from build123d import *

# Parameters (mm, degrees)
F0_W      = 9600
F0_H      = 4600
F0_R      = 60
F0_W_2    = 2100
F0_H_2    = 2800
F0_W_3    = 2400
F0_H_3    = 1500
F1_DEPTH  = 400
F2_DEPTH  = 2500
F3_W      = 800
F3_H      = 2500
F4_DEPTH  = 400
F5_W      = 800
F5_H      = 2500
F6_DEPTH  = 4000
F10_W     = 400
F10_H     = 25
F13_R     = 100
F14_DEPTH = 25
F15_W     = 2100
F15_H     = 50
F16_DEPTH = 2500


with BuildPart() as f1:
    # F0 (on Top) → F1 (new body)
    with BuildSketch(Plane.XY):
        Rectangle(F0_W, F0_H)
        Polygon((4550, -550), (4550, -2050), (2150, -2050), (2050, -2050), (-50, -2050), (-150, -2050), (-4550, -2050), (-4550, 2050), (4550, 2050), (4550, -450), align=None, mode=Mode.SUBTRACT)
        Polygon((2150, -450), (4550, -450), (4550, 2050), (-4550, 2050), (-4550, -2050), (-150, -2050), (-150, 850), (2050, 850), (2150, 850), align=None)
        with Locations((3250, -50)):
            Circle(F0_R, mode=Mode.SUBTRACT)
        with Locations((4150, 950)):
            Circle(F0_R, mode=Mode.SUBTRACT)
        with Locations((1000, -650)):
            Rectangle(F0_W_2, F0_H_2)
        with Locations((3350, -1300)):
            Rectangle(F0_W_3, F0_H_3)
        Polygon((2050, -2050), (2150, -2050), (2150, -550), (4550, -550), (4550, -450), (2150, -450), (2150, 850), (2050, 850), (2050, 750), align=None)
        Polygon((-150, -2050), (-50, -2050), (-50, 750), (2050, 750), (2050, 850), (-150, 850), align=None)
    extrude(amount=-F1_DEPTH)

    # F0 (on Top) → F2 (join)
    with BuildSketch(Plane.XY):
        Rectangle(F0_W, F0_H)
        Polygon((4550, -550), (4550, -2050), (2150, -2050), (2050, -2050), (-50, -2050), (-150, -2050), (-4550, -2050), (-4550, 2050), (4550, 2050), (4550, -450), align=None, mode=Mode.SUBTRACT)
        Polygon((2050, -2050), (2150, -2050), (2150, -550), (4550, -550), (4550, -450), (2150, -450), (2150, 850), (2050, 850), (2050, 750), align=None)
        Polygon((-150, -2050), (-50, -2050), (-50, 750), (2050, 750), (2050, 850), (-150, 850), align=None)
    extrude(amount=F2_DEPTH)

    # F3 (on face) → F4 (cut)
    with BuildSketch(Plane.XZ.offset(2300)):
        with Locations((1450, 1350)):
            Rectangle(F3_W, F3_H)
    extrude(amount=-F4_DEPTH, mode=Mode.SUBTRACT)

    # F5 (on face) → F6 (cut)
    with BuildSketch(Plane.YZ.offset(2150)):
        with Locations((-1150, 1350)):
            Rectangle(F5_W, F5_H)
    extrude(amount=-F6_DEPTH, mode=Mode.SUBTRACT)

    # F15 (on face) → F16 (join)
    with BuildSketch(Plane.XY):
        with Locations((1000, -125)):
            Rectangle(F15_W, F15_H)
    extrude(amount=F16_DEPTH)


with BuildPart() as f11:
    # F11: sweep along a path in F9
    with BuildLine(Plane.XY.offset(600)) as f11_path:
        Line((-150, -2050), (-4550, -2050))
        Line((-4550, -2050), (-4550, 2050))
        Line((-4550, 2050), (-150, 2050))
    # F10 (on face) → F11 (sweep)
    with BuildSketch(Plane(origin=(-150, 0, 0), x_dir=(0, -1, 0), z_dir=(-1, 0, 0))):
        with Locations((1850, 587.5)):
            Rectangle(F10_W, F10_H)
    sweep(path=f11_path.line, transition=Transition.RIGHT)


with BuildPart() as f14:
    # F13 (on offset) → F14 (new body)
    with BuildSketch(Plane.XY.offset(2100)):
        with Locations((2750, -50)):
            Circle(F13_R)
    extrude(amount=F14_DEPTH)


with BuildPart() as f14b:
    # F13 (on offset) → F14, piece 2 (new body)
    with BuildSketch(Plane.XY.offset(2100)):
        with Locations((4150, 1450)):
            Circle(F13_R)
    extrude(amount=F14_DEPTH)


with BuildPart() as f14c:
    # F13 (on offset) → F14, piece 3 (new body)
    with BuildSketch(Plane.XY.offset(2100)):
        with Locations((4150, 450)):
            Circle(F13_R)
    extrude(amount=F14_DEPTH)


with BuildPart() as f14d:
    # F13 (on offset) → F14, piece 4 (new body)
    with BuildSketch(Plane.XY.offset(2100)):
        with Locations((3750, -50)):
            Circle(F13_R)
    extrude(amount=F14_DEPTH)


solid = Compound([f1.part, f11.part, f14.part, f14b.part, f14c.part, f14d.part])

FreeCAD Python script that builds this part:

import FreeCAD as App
import Part
import Sketcher
from FreeCAD import Vector


def add_polygon(sketch, points):
    """Adds a closed chain of lines whose ends are joined by coincident constraints."""
    first, n = sketch.GeometryCount, len(points)
    for a, b in zip(points, points[1:] + points[:1]):
        sketch.addGeometry(Part.LineSegment(App.Vector(*a, 0), App.Vector(*b, 0)), False)
    for i in range(n):
        sketch.addConstraint(Sketcher.Constraint("Coincident", first + i, 2, first + (i + 1) % n, 1))

doc = App.newDocument("Part")
params = doc.addObject("Spreadsheet::Sheet", "Params")
for row, (alias, value) in enumerate([
    ("sketch1_diameter", "120 mm"),
    ("sketch1_width", "9600 mm"),
    ("sketch1_height", "4600 mm"),
    ("pad1_length", "400 mm"),
    ("sketch2_width", "9600 mm"),
    ("sketch2_width2", "2400 mm"),
    ("sketch2_width3", "2300 mm"),
    ("sketch2_width4", "4400 mm"),
    ("sketch2_width5", "2100 mm"),
    ("pad2_length", "2500 mm"),
    ("sketch3_width", "800 mm"),
    ("sketch3_height", "2500 mm"),
    ("pocket1_length", "400 mm"),
    ("sketch4_width", "800 mm"),
    ("sketch4_height", "2500 mm"),
    ("pocket2_length", "4000 mm"),
    ("sketch5_width", "2100 mm"),
    ("sketch5_height", "50 mm"),
    ("pad3_length", "2500 mm"),
    ("sketch6_width", "400 mm"),
    ("sketch6_height", "25 mm"),
    ("sketch7_width", "4400 mm"),
    ("sketch7_height", "4100 mm"),
    ("sketch8_diameter", "200 mm"),
    ("pad4_length", "25 mm"),
    ("sketch9_diameter", "200 mm"),
    ("pad5_length", "25 mm"),
    ("sketch10_diameter", "200 mm"),
    ("pad6_length", "25 mm"),
    ("sketch11_diameter", "200 mm"),
    ("pad7_length", "25 mm"),
], start=1):
    params.set(f"A{row}", alias)
    params.set(f"B{row}", "=" + value)
    params.setAlias(f"B{row}", alias)

body = doc.addObject("PartDesign::Body", "Body")

sketch1 = doc.addObject("Sketcher::SketchObject", "Sketch")
body.addObject(sketch1)
sketch1.AttachmentSupport = (doc.XY_Plane, [""])
sketch1.MapMode = "FlatFace"
add_polygon(sketch1, [(-4800, 2300), (-4800, -2300), (4800, -2300), (4800, 2300)])
sketch1.addGeometry(Part.Circle(Vector(3250, -50, 0), Vector(0, 0, 1), 60), False)
sketch1.addGeometry(Part.Circle(Vector(4150, 950, 0), Vector(0, 0, 1), 60), False)
sketch1.addConstraint(Sketcher.Constraint("Vertical", 0))
sketch1.addConstraint(Sketcher.Constraint("Horizontal", 1))
sketch1.addConstraint(Sketcher.Constraint("Vertical", 2))
sketch1.addConstraint(Sketcher.Constraint("Horizontal", 3))
sketch1.addConstraint(Sketcher.Constraint("Equal", 4, 5))
sketch1.addConstraint(Sketcher.Constraint("Symmetric", 0, 2, 2, 2, -1, 1))
sketch1.addConstraint(Sketcher.Constraint("Diameter", 4, 120.0))
sketch1.addConstraint(Sketcher.Constraint("DistanceX", 1, 1, 1, 2, 9600.0))
sketch1.addConstraint(Sketcher.Constraint("DistanceY", 0, 2, 0, 1, 4600.0))
sketch1.addConstraint(Sketcher.Constraint("DistanceX", -1, 1, 4, 3, 3250.0))
sketch1.addConstraint(Sketcher.Constraint("DistanceY", 4, 3, -1, 1, 50.0))
sketch1.addConstraint(Sketcher.Constraint("DistanceX", -1, 1, 5, 3, 4150.0))
sketch1.addConstraint(Sketcher.Constraint("DistanceY", -1, 1, 5, 3, 950.0))
sketch1.setExpression("Constraints[10]", "Params.sketch1_diameter")
sketch1.setExpression("Constraints[11]", "Params.sketch1_width")
sketch1.setExpression("Constraints[12]", "Params.sketch1_height")
pad1 = doc.addObject("PartDesign::Pad", "Pad")
body.addObject(pad1)
pad1.Profile = sketch1
pad1.setExpression("Length", "Params.pad1_length")
pad1.Reversed = True

sketch2 = doc.addObject("Sketcher::SketchObject", "Sketch001")
body.addObject(sketch2)
sketch2.AttachmentSupport = (doc.XY_Plane, [""])
sketch2.MapMode = "FlatFace"
add_polygon(sketch2, [(-4800, 2300), (-4800, -2300), (4800, -2300), (4800, 2300)])
add_polygon(sketch2, [(4550, 2050), (4550, -450), (2150, -450), (2150, 850), (-150, 850), (-150, -2050), (-4550, -2050), (-4550, 2050)])
add_polygon(sketch2, [(2050, 750), (2050, -2050), (-50, -2050), (-50, 750)])
add_polygon(sketch2, [(4550, -550), (4550, -2050), (2150, -2050), (2150, -550)])
sketch2.addConstraint(Sketcher.Constraint("Vertical", 0))
sketch2.addConstraint(Sketcher.Constraint("Horizontal", 1))
sketch2.addConstraint(Sketcher.Constraint("Vertical", 2))
sketch2.addConstraint(Sketcher.Constraint("Horizontal", 3))
sketch2.addConstraint(Sketcher.Constraint("Vertical", 4))
sketch2.addConstraint(Sketcher.Constraint("Horizontal", 5))
sketch2.addConstraint(Sketcher.Constraint("Vertical", 6))
sketch2.addConstraint(Sketcher.Constraint("Horizontal", 7))
sketch2.addConstraint(Sketcher.Constraint("Vertical", 8))
sketch2.addConstraint(Sketcher.Constraint("Horizontal", 9))
sketch2.addConstraint(Sketcher.Constraint("Vertical", 10))
sketch2.addConstraint(Sketcher.Constraint("Horizontal", 11))
sketch2.addConstraint(Sketcher.Constraint("Vertical", 12))
sketch2.addConstraint(Sketcher.Constraint("Horizontal", 13))
sketch2.addConstraint(Sketcher.Constraint("Vertical", 14))
sketch2.addConstraint(Sketcher.Constraint("Horizontal", 15))
sketch2.addConstraint(Sketcher.Constraint("Vertical", 16))
sketch2.addConstraint(Sketcher.Constraint("Horizontal", 17))
sketch2.addConstraint(Sketcher.Constraint("Vertical", 18))
sketch2.addConstraint(Sketcher.Constraint("Horizontal", 19))
sketch2.addConstraint(Sketcher.Constraint("Symmetric", 0, 2, 2, 2, -1, 1))
sketch2.addConstraint(Sketcher.Constraint("Symmetric", 9, 2, 11, 2, -1, 1))
sketch2.addConstraint(Sketcher.Constraint("Symmetric", 10, 2, 16, 2, -1, 1))
sketch2.addConstraint(Sketcher.Constraint("Horizontal", 9, 2, 12, 2))
sketch2.addConstraint(Sketcher.Constraint("Vertical", 6, 2, 17, 2))
sketch2.addConstraint(Sketcher.Constraint("DistanceX", 1, 1, 1, 2, 9600.0))
sketch2.addConstraint(Sketcher.Constraint("DistanceX", 5, 2, 5, 1, 2400.0))
sketch2.addConstraint(Sketcher.Constraint("DistanceX", 7, 2, 7, 1, 2300.0))
sketch2.addConstraint(Sketcher.Constraint("DistanceX", 9, 2, 9, 1, 4400.0))
sketch2.addConstraint(Sketcher.Constraint("DistanceX", 13, 2, 13, 1, 2100.0))
sketch2.addConstraint(Sketcher.Constraint("DistanceY", 0, 2, 0, 1, 4600.0))
sketch2.addConstraint(Sketcher.Constraint("DistanceY", 4, 2, 4, 1, 2500.0))
sketch2.addConstraint(Sketcher.Constraint("DistanceY", 6, 1, 6, 2, 1300.0))
sketch2.addConstraint(Sketcher.Constraint("DistanceY", 8, 2, 8, 1, 2900.0))
sketch2.addConstraint(Sketcher.Constraint("DistanceY", 12, 2, 12, 1, 2800.0))
sketch2.addConstraint(Sketcher.Constraint("DistanceY", 16, 2, 16, 1, 1500.0))
sketch2.addConstraint(Sketcher.Constraint("DistanceX", -1, 1, 12, 2, 2050.0))
sketch2.setExpression("Constraints[45]", "Params.sketch2_width")
sketch2.setExpression("Constraints[46]", "Params.sketch2_width2")
sketch2.setExpression("Constraints[47]", "Params.sketch2_width3")
sketch2.setExpression("Constraints[48]", "Params.sketch2_width4")
sketch2.setExpression("Constraints[49]", "Params.sketch2_width5")
pad2 = doc.addObject("PartDesign::Pad", "Pad001")
body.addObject(pad2)
pad2.Profile = sketch2
pad2.setExpression("Length", "Params.pad2_length")

sketch3 = doc.addObject("Sketcher::SketchObject", "Sketch002")
body.addObject(sketch3)
sketch3.AttachmentSupport = (doc.XZ_Plane, [""])
sketch3.MapMode = "FlatFace"
sketch3.AttachmentOffset = App.Placement(Vector(0, 0, 2300), App.Rotation())
add_polygon(sketch3, [(1050, 2600), (1050, 100), (1850, 100), (1850, 2600)])
sketch3.addConstraint(Sketcher.Constraint("Vertical", 0))
sketch3.addConstraint(Sketcher.Constraint("Horizontal", 1))
sketch3.addConstraint(Sketcher.Constraint("Vertical", 2))
sketch3.addConstraint(Sketcher.Constraint("Horizontal", 3))
sketch3.addConstraint(Sketcher.Constraint("DistanceX", 1, 1, 1, 2, 800.0))
sketch3.addConstraint(Sketcher.Constraint("DistanceY", 0, 2, 0, 1, 2500.0))
sketch3.addConstraint(Sketcher.Constraint("DistanceX", -1, 1, 0, 2, 1050.0))
sketch3.addConstraint(Sketcher.Constraint("DistanceY", -1, 1, 0, 2, 100.0))
sketch3.setExpression("Constraints[8]", "Params.sketch3_width")
sketch3.setExpression("Constraints[9]", "Params.sketch3_height")
pocket1 = doc.addObject("PartDesign::Pocket", "Pocket")
body.addObject(pocket1)
pocket1.Profile = sketch3
pocket1.setExpression("Length", "Params.pocket1_length")

sketch4 = doc.addObject("Sketcher::SketchObject", "Sketch003")
body.addObject(sketch4)
sketch4.AttachmentSupport = (doc.YZ_Plane, [""])
sketch4.MapMode = "FlatFace"
sketch4.AttachmentOffset = App.Placement(Vector(0, 0, 2150), App.Rotation())
add_polygon(sketch4, [(-1550, 2600), (-1550, 100), (-750, 100), (-750, 2600)])
sketch4.addConstraint(Sketcher.Constraint("Vertical", 0))
sketch4.addConstraint(Sketcher.Constraint("Horizontal", 1))
sketch4.addConstraint(Sketcher.Constraint("Vertical", 2))
sketch4.addConstraint(Sketcher.Constraint("Horizontal", 3))
sketch4.addConstraint(Sketcher.Constraint("DistanceX", 1, 1, 1, 2, 800.0))
sketch4.addConstraint(Sketcher.Constraint("DistanceY", 0, 2, 0, 1, 2500.0))
sketch4.addConstraint(Sketcher.Constraint("DistanceX", 0, 2, -1, 1, 1550.0))
sketch4.addConstraint(Sketcher.Constraint("DistanceY", -1, 1, 0, 2, 100.0))
sketch4.setExpression("Constraints[8]", "Params.sketch4_width")
sketch4.setExpression("Constraints[9]", "Params.sketch4_height")
pocket2 = doc.addObject("PartDesign::Pocket", "Pocket001")
body.addObject(pocket2)
pocket2.Profile = sketch4
pocket2.setExpression("Length", "Params.pocket2_length")

sketch5 = doc.addObject("Sketcher::SketchObject", "Sketch004")
body.addObject(sketch5)
sketch5.AttachmentSupport = (doc.XY_Plane, [""])
sketch5.MapMode = "FlatFace"
add_polygon(sketch5, [(-50, -100), (-50, -150), (2050, -150), (2050, -100)])
sketch5.addConstraint(Sketcher.Constraint("Vertical", 0))
sketch5.addConstraint(Sketcher.Constraint("Horizontal", 1))
sketch5.addConstraint(Sketcher.Constraint("Vertical", 2))
sketch5.addConstraint(Sketcher.Constraint("Horizontal", 3))
sketch5.addConstraint(Sketcher.Constraint("DistanceX", 1, 1, 1, 2, 2100.0))
sketch5.addConstraint(Sketcher.Constraint("DistanceY", 0, 2, 0, 1, 50.0))
sketch5.addConstraint(Sketcher.Constraint("DistanceX", 0, 2, -1, 1, 50.0))
sketch5.addConstraint(Sketcher.Constraint("DistanceY", 0, 2, -1, 1, 150.0))
sketch5.setExpression("Constraints[8]", "Params.sketch5_width")
sketch5.setExpression("Constraints[9]", "Params.sketch5_height")
pad3 = doc.addObject("PartDesign::Pad", "Pad002")
body.addObject(pad3)
pad3.Profile = sketch5
pad3.setExpression("Length", "Params.pad3_length")
body2 = doc.addObject("PartDesign::Body", "Body001")

sketch6 = doc.addObject("Sketcher::SketchObject", "Sketch005")
body2.addObject(sketch6)
sketch6.AttachmentSupport = (doc.getObject("YZ_Plane001"), [""])
sketch6.MapMode = "FlatFace"
sketch6.AttachmentOffset = App.Placement(Vector(0, 0, -150), App.Rotation())
add_polygon(sketch6, [(-1650, 600), (-1650, 575), (-2050, 575), (-2050, 600)])
sketch6.addConstraint(Sketcher.Constraint("Vertical", 0))
sketch6.addConstraint(Sketcher.Constraint("Horizontal", 1))
sketch6.addConstraint(Sketcher.Constraint("Vertical", 2))
sketch6.addConstraint(Sketcher.Constraint("Horizontal", 3))
sketch6.addConstraint(Sketcher.Constraint("DistanceX", 1, 2, 1, 1, 400.0))
sketch6.addConstraint(Sketcher.Constraint("DistanceY", 0, 2, 0, 1, 25.0))
sketch6.addConstraint(Sketcher.Constraint("DistanceX", 0, 2, -1, 1, 1650.0))
sketch6.addConstraint(Sketcher.Constraint("DistanceY", -1, 1, 0, 2, 575.0))
sketch6.setExpression("Constraints[8]", "Params.sketch6_width")
sketch6.setExpression("Constraints[9]", "Params.sketch6_height")

sketch7 = doc.addObject("Sketcher::SketchObject", "Sketch006")
body2.addObject(sketch7)
sketch7.AttachmentSupport = (doc.getObject("XY_Plane001"), [""])
sketch7.MapMode = "FlatFace"
sketch7.AttachmentOffset = App.Placement(Vector(0, 0, 600), App.Rotation())
sketch7.addGeometry(Part.LineSegment(Vector(-150, -2050, 0), Vector(-4550, -2050, 0)), False)
sketch7.addGeometry(Part.LineSegment(Vector(-4550, -2050, 0), Vector(-4550, 2050, 0)), False)
sketch7.addGeometry(Part.LineSegment(Vector(-4550, 2050, 0), Vector(-150, 2050, 0)), False)
sketch7.addConstraint(Sketcher.Constraint("Coincident", 0, 2, 1, 1))
sketch7.addConstraint(Sketcher.Constraint("Coincident", 1, 2, 2, 1))
sketch7.addConstraint(Sketcher.Constraint("Horizontal", 0))
sketch7.addConstraint(Sketcher.Constraint("Vertical", 1))
sketch7.addConstraint(Sketcher.Constraint("Horizontal", 2))
sketch7.addConstraint(Sketcher.Constraint("Symmetric", 0, 1, 2, 2, -1))
sketch7.addConstraint(Sketcher.Constraint("DistanceX", 0, 2, 0, 1, 4400.0))
sketch7.addConstraint(Sketcher.Constraint("DistanceY", 1, 1, 1, 2, 4100.0))
sketch7.addConstraint(Sketcher.Constraint("DistanceX", 0, 1, -1, 1, 150.0))
sketch7.setExpression("Constraints[6]", "Params.sketch7_width")
sketch7.setExpression("Constraints[7]", "Params.sketch7_height")
doc.recompute()

additivepipe = doc.addObject("PartDesign::AdditivePipe", "AdditivePipe")
body2.addObject(additivepipe)
additivepipe.Profile = sketch6
additivepipe.Spine = (sketch7, ["Edge1", "Edge2", "Edge3"])
additivepipe.Transition = "Right corner"
body3 = doc.addObject("PartDesign::Body", "Body002")

sketch8 = doc.addObject("Sketcher::SketchObject", "Sketch007")
body3.addObject(sketch8)
sketch8.AttachmentSupport = (doc.getObject("XY_Plane002"), [""])
sketch8.MapMode = "FlatFace"
sketch8.AttachmentOffset = App.Placement(Vector(0, 0, 2100), App.Rotation())
sketch8.addGeometry(Part.Circle(Vector(2750, -50, 0), Vector(0, 0, 1), 100), False)
sketch8.addConstraint(Sketcher.Constraint("Diameter", 0, 200.0))
sketch8.addConstraint(Sketcher.Constraint("DistanceX", -1, 1, 0, 3, 2750.0))
sketch8.addConstraint(Sketcher.Constraint("DistanceY", 0, 3, -1, 1, 50.0))
sketch8.setExpression("Constraints[0]", "Params.sketch8_diameter")
pad4 = doc.addObject("PartDesign::Pad", "Pad003")
body3.addObject(pad4)
pad4.Profile = sketch8
pad4.setExpression("Length", "Params.pad4_length")
body4 = doc.addObject("PartDesign::Body", "Body003")

sketch9 = doc.addObject("Sketcher::SketchObject", "Sketch008")
body4.addObject(sketch9)
sketch9.AttachmentSupport = (doc.getObject("XY_Plane003"), [""])
sketch9.MapMode = "FlatFace"
sketch9.AttachmentOffset = App.Placement(Vector(0, 0, 2100), App.Rotation())
sketch9.addGeometry(Part.Circle(Vector(4150, 1450, 0), Vector(0, 0, 1), 100), False)
sketch9.addConstraint(Sketcher.Constraint("Diameter", 0, 200.0))
sketch9.addConstraint(Sketcher.Constraint("DistanceX", -1, 1, 0, 3, 4150.0))
sketch9.addConstraint(Sketcher.Constraint("DistanceY", -1, 1, 0, 3, 1450.0))
sketch9.setExpression("Constraints[0]", "Params.sketch9_diameter")
pad5 = doc.addObject("PartDesign::Pad", "Pad004")
body4.addObject(pad5)
pad5.Profile = sketch9
pad5.setExpression("Length", "Params.pad5_length")
body5 = doc.addObject("PartDesign::Body", "Body004")

sketch10 = doc.addObject("Sketcher::SketchObject", "Sketch009")
body5.addObject(sketch10)
sketch10.AttachmentSupport = (doc.getObject("XY_Plane004"), [""])
sketch10.MapMode = "FlatFace"
sketch10.AttachmentOffset = App.Placement(Vector(0, 0, 2100), App.Rotation())
sketch10.addGeometry(Part.Circle(Vector(4150, 450, 0), Vector(0, 0, 1), 100), False)
sketch10.addConstraint(Sketcher.Constraint("Diameter", 0, 200.0))
sketch10.addConstraint(Sketcher.Constraint("DistanceX", -1, 1, 0, 3, 4150.0))
sketch10.addConstraint(Sketcher.Constraint("DistanceY", -1, 1, 0, 3, 450.0))
sketch10.setExpression("Constraints[0]", "Params.sketch10_diameter")
pad6 = doc.addObject("PartDesign::Pad", "Pad005")
body5.addObject(pad6)
pad6.Profile = sketch10
pad6.setExpression("Length", "Params.pad6_length")
body6 = doc.addObject("PartDesign::Body", "Body005")

sketch11 = doc.addObject("Sketcher::SketchObject", "Sketch010")
body6.addObject(sketch11)
sketch11.AttachmentSupport = (doc.getObject("XY_Plane005"), [""])
sketch11.MapMode = "FlatFace"
sketch11.AttachmentOffset = App.Placement(Vector(0, 0, 2100), App.Rotation())
sketch11.addGeometry(Part.Circle(Vector(3750, -50, 0), Vector(0, 0, 1), 100), False)
sketch11.addConstraint(Sketcher.Constraint("Diameter", 0, 200.0))
sketch11.addConstraint(Sketcher.Constraint("DistanceX", -1, 1, 0, 3, 3750.0))
sketch11.addConstraint(Sketcher.Constraint("DistanceY", 0, 3, -1, 1, 50.0))
sketch11.setExpression("Constraints[0]", "Params.sketch11_diameter")
pad7 = doc.addObject("PartDesign::Pad", "Pad006")
body6.addObject(pad7)
pad7.Profile = sketch11
pad7.setExpression("Length", "Params.pad7_length")

doc.recompute()
